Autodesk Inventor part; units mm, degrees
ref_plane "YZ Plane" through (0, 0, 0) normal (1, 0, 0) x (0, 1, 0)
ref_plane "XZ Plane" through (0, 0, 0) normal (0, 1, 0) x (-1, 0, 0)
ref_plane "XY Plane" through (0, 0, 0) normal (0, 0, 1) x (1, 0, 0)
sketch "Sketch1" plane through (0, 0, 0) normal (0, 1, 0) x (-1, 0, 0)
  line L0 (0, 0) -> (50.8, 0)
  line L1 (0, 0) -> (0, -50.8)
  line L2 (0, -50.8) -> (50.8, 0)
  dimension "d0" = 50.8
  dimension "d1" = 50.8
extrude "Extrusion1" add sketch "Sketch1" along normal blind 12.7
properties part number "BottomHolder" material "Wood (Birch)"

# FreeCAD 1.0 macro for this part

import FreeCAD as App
import Part
import Sketcher

V = App.Vector
Q = App.Units.Quantity

doc = App.newDocument("Part")
params = doc.addObject("Spreadsheet::Sheet", "Params")
for row, (alias, value) in enumerate([
    ("sketch1_width", "2 in"),
    ("pad1_length", "0.5 in"),
], start=1):
    params.set(f"A{row}", alias)
    params.set(f"B{row}", "=" + value)
    params.setAlias(f"B{row}", alias)

body = doc.addObject("PartDesign::Body", "Body")

# Sketch on XZ plane
sketch1 = body.newObject("Sketcher::SketchObject", "Sketch")
sketch1.AttachmentSupport = (doc.getObject("XZ_Plane"), [""])
sketch1.MapMode = "FlatFace"
sketch1.addGeometry(Part.LineSegment(V(-50.8, 0, 0), V(0, 0, 0)), False)
sketch1.addGeometry(Part.LineSegment(V(0, 0, 0), V(0, -50.8, 0)), False)
sketch1.addGeometry(Part.LineSegment(V(0, -50.8, 0), V(-50.8, 0, 0)), False)
sketch1.addConstraint(Sketcher.Constraint("Coincident", 0, 2, 1, 1))
sketch1.addConstraint(Sketcher.Constraint("Coincident", 1, 2, 2, 1))
sketch1.addConstraint(Sketcher.Constraint("Coincident", 2, 2, 0, 1))
sketch1.addConstraint(Sketcher.Constraint("Horizontal", 0))
sketch1.addConstraint(Sketcher.Constraint("Vertical", 1))
sketch1.addConstraint(Sketcher.Constraint("Coincident", 0, 2, -1, 1))
sketch1.addConstraint(Sketcher.Constraint("Equal", 0, 1))
sketch1.addConstraint(Sketcher.Constraint("DistanceX", 0, 1, 0, 2, Q("2 in")))
sketch1.setExpression("Constraints[7]", "Params.sketch1_width")
pad1 = body.newObject("PartDesign::Pad", "Pad")
pad1.Profile = sketch1
pad1.setExpression("Length", "Params.pad1_length")
pad1.Reversed = True

doc.recompute()
